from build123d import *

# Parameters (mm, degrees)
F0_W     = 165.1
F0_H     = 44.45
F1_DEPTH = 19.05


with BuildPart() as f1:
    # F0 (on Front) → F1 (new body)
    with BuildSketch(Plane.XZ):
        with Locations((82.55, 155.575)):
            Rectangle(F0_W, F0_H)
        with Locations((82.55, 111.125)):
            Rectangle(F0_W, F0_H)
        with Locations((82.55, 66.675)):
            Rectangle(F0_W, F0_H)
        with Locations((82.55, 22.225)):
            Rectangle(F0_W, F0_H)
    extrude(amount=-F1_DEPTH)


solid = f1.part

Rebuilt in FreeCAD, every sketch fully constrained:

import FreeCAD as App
import Part
import Sketcher
Q = App.Units.Quantity


def add_polygon(sketch, points):
    """Adds a closed chain of lines whose ends are joined by coincident constraints."""
    first, n = sketch.GeometryCount, len(points)
    for a, b in zip(points, points[1:] + points[:1]):
        sketch.addGeometry(Part.LineSegment(App.Vector(*a, 0), App.Vector(*b, 0)), False)
    for i in range(n):
        sketch.addConstraint(Sketcher.Constraint("Coincident", first + i, 2, first + (i + 1) % n, 1))

doc = App.newDocument("Part")
body = doc.addObject("PartDesign::Body", "Body")

# Sketch on XZ plane
sketch1 = body.newObject("Sketcher::SketchObject", "Sketch")
sketch1.AttachmentSupport = (doc.getObject("XZ_Plane"), [""])
sketch1.MapMode = "FlatFace"
add_polygon(sketch1, [(0, 178), (0, 0), (165, 0), (165, 178)])  # lines 0-3
sketch1.addConstraint(Sketcher.Constraint("Vertical", 0))
sketch1.addConstraint(Sketcher.Constraint("Horizontal", 1))
sketch1.addConstraint(Sketcher.Constraint("Vertical", 2))
sketch1.addConstraint(Sketcher.Constraint("Horizontal", 3))
sketch1.addConstraint(Sketcher.Constraint("Coincident", 0, 2, -1, 1))
sketch1.addConstraint(Sketcher.Constraint("DistanceY", 0, 2, 0, 1, Q("7 in")))
sketch1.addConstraint(Sketcher.Constraint("DistanceX", 1, 1, 1, 2, Q("6.5 in")))
pad1 = body.newObject("PartDesign::Pad", "Pad")
pad1.Profile = sketch1
pad1.Length = Q("0.75 in")
pad1.Reversed = True

doc.recompute()
